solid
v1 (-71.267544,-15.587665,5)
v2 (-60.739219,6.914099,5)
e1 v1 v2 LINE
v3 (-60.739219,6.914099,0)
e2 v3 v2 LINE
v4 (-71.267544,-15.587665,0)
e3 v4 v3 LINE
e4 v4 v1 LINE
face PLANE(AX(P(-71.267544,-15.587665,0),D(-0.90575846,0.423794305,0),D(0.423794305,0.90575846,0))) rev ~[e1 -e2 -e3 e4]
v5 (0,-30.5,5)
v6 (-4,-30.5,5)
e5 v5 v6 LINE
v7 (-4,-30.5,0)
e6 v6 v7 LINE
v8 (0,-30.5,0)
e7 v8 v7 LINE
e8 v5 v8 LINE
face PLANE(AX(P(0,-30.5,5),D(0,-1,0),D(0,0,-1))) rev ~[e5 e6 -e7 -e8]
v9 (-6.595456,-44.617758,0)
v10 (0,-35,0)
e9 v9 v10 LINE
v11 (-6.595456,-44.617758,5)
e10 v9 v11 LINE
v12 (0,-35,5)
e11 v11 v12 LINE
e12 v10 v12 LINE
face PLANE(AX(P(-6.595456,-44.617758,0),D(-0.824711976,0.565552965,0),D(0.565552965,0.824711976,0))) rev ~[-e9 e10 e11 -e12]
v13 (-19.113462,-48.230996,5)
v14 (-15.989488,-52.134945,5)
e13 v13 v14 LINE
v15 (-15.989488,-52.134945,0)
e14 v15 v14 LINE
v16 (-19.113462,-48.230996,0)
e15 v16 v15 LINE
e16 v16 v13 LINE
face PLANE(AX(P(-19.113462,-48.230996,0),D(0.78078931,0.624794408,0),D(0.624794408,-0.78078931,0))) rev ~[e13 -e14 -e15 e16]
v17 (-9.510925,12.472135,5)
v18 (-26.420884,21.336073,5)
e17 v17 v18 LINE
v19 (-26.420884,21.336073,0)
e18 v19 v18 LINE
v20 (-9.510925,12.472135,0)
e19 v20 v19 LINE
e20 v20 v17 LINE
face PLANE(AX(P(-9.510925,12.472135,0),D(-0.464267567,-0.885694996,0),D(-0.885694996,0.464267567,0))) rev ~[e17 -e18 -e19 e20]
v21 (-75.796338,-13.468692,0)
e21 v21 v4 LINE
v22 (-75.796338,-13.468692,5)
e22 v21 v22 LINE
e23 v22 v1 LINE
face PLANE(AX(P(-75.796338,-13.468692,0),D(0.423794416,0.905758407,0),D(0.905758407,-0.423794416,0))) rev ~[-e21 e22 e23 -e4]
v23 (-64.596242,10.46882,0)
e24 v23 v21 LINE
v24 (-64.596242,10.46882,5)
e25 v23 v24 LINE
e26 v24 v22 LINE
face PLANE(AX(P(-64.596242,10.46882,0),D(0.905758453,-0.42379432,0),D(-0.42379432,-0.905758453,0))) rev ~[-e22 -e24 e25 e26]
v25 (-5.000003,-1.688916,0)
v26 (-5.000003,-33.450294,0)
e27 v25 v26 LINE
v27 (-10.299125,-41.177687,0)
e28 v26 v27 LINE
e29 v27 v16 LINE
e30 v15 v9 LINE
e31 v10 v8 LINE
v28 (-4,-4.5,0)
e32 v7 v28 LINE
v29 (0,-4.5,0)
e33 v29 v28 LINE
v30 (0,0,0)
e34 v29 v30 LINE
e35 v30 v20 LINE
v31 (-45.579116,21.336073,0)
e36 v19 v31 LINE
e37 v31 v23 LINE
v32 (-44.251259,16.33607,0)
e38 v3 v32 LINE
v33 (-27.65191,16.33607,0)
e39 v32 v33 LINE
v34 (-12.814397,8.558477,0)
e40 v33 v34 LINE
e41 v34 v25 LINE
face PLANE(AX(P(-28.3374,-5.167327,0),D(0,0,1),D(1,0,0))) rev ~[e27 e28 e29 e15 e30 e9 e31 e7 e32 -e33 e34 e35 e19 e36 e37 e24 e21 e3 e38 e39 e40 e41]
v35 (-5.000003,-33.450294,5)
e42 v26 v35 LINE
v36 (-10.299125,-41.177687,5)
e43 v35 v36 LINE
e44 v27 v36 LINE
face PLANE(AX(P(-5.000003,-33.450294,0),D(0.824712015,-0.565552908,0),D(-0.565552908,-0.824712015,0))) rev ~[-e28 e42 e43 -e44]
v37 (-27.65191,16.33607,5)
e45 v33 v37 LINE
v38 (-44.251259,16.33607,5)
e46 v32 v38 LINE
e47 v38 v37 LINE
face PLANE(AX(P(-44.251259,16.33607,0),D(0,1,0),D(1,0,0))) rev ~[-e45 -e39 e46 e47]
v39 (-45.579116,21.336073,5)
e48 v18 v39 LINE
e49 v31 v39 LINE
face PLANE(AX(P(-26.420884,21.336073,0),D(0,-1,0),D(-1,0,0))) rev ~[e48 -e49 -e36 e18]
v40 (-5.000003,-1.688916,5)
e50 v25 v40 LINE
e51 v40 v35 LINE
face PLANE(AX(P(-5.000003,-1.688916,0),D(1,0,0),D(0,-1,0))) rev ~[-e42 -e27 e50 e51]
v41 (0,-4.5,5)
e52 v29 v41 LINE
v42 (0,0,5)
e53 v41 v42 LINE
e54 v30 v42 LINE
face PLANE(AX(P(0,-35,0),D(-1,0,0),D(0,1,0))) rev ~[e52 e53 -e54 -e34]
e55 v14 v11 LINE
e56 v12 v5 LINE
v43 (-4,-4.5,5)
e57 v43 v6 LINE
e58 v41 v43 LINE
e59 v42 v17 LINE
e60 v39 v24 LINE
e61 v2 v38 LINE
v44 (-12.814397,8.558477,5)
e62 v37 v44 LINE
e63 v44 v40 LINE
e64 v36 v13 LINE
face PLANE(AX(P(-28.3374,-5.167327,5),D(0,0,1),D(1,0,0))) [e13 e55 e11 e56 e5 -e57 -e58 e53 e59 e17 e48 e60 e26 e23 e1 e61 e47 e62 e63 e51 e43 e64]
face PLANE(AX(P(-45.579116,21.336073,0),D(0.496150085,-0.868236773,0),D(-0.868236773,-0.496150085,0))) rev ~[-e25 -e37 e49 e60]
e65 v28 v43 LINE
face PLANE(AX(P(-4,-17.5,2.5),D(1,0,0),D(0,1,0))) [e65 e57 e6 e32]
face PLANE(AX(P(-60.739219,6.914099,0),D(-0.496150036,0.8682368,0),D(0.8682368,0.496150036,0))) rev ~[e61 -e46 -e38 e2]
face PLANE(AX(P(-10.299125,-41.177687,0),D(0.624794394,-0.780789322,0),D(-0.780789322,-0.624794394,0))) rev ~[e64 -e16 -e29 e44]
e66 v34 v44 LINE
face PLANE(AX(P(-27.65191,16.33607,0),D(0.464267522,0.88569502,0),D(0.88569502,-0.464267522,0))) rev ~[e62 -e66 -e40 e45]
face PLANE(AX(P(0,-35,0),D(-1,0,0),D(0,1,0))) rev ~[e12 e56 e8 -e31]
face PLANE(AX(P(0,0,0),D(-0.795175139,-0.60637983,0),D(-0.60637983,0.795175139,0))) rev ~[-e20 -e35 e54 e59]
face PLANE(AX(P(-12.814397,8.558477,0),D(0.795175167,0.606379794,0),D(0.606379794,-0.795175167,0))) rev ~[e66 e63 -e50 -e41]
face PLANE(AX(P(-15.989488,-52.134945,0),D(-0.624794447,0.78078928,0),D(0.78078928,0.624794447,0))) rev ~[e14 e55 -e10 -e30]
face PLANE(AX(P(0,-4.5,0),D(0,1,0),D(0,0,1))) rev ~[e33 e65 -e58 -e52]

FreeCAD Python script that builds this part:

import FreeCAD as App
import Part
import Sketcher

V = App.Vector


def add_polygon(sketch, points):
    """Adds a closed chain of lines whose ends are joined by coincident constraints."""
    first, n = sketch.GeometryCount, len(points)
    for a, b in zip(points, points[1:] + points[:1]):
        sketch.addGeometry(Part.LineSegment(App.Vector(*a, 0), App.Vector(*b, 0)), False)
    for i in range(n):
        sketch.addConstraint(Sketcher.Constraint("Coincident", first + i, 2, first + (i + 1) % n, 1))

doc = App.newDocument("Part")
params = doc.addObject("Spreadsheet::Sheet", "Params")
for row, (alias, value) in enumerate([
    ("sketch1_height", "35 mm"),
    ("pad1_length", "5 mm"),
    ("sketch2_width", "26 mm"),
    ("sketch2_height", "5 mm"),
    ("pocket1_length", "4 mm"),
], start=1):
    params.set(f"A{row}", alias)
    params.set(f"B{row}", "=" + value)
    params.setAlias(f"B{row}", alias)

body = doc.addObject("PartDesign::Body", "Body")

# Sketch on XY plane
sketch1 = body.newObject("Sketcher::SketchObject", "Sketch")
sketch1.AttachmentSupport = (doc.getObject("XY_Plane"), [""])
sketch1.MapMode = "FlatFace"
add_polygon(sketch1, [(0, -35), (0, 0), (-10, 12), (-26, 21), (-46, 21), (-65, 10), (-76, -13), (-71, -16), (-61, 7), (-44, 16), (-28, 16), (-13, 9), (-5, -2), (-5, -33), (-10, -41), (-19, -48), (-16, -52), (-7, -45)])  # lines 0-17
sketch1.addConstraint(Sketcher.Constraint("Vertical", 0))
sketch1.addConstraint(Sketcher.Constraint("Horizontal", 3))
sketch1.addConstraint(Sketcher.Constraint("Horizontal", 9))
sketch1.addConstraint(Sketcher.Constraint("Vertical", 12))
sketch1.addConstraint(Sketcher.Constraint("Coincident", 0, 2, -1, 1))
sketch1.addConstraint(Sketcher.Constraint("Perpendicular", 5, 6))
sketch1.addConstraint(Sketcher.Constraint("Perpendicular", 6, 7))
sketch1.addConstraint(Sketcher.Constraint("Parallel", 4, 8))
sketch1.addConstraint(Sketcher.Constraint("Parallel", 2, 10))
sketch1.addConstraint(Sketcher.Constraint("Parallel", 1, 11))
sketch1.addConstraint(Sketcher.Constraint("Perpendicular", 14, 15))
sketch1.addConstraint(Sketcher.Constraint("Perpendicular", 15, 16))
sketch1.addConstraint(Sketcher.Constraint("Parallel", 13, 17))
sketch1.addConstraint(Sketcher.Constraint("Equal", 6, 15))
sketch1.addConstraint(Sketcher.Constraint("DistanceY", 0, 1, 0, 2, 35.0))
sketch1.addConstraint(Sketcher.Constraint("DistanceX", 3, 2, 3, 1, 19.158232))
sketch1.addConstraint(Sketcher.Constraint("DistanceX", 9, 1, 9, 2, 16.599349))
sketch1.addConstraint(Sketcher.Constraint("DistanceY", 12, 2, 12, 1, 31.761378))
sketch1.addConstraint(Sketcher.Constraint("DistanceY", -1, 1, 7, 2, 6.914099))
sketch1.addConstraint(Sketcher.Constraint("DistanceX", 6, 2, 4, 2, 6.671302))
sketch1.addConstraint(Sketcher.Constraint("DistanceY", 6, 2, 1, 2, 28.0598))
sketch1.addConstraint(Sketcher.Constraint("DistanceX", 13, 2, 1, 2, 0.7882))
sketch1.addConstraint(Sketcher.Constraint("DistanceY", 14, 2, 12, 2, 14.780702))
sketch1.addConstraint(Sketcher.Constraint("Distance", 5, 26.428141))
sketch1.addConstraint(Sketcher.Constraint("Distance", 14, 11.289008))
sketch1.addConstraint(Sketcher.Constraint("Distance", 17, 11.66196))
sketch1.addConstraint(Sketcher.Constraint("DistanceY", -1, 1, 4, 2, 10.46882))
sketch1.addConstraint(Sketcher.Constraint("DistanceX", 5, 2, -1, 1, 75.796338))
sketch1.addConstraint(Sketcher.Constraint("DistanceX", 7, 2, -1, 1, 60.739219))
sketch1.addConstraint(Sketcher.Constraint("DistanceX", 8, 2, -1, 1, 44.251259))
sketch1.addConstraint(Sketcher.Constraint("DistanceY", -1, 1, 8, 2, 16.33607))
sketch1.addConstraint(Sketcher.Constraint("DistanceX", 14, 2, -1, 1, 19.113462))
sketch1.addConstraint(Sketcher.Constraint("DistanceY", 16, 2, -1, 1, 44.617758))
sketch1.addConstraint(Sketcher.Constraint("DistanceX", 2, 2, 1, 2, 16.909959))
sketch1.addConstraint(Sketcher.Constraint("DistanceX", 4, 2, 2, 2, 38.175358))
sketch1.setExpression("Constraints[32]", "Params.sketch1_height")
pad1 = body.newObject("PartDesign::Pad", "Pad")
pad1.Profile = sketch1
pad1.setExpression("Length", "Params.pad1_length")

# Sketch on YZ plane
sketch2 = body.newObject("Sketcher::SketchObject", "Sketch001")
sketch2.AttachmentSupport = (doc.getObject("YZ_Plane"), [""])
sketch2.MapMode = "FlatFace"
add_polygon(sketch2, [(-4, 0), (-4, 5), (-30, 5), (-30, 0)])  # lines 0-3
sketch2.addConstraint(Sketcher.Constraint("Vertical", 0))
sketch2.addConstraint(Sketcher.Constraint("Horizontal", 1))
sketch2.addConstraint(Sketcher.Constraint("Vertical", 2))
sketch2.addConstraint(Sketcher.Constraint("Horizontal", 3))
sketch2.addConstraint(Sketcher.Constraint("PointOnObject", 2, 2, -1))
sketch2.addConstraint(Sketcher.Constraint("DistanceX", 1, 2, 1, 1, 26.0))
sketch2.addConstraint(Sketcher.Constraint("DistanceY", 0, 1, 0, 2, 5.0))
sketch2.addConstraint(Sketcher.Constraint("DistanceX", 0, 2, -1, 1, 4.5))
sketch2.setExpression("Constraints[9]", "Params.sketch2_width")
sketch2.setExpression("Constraints[10]", "Params.sketch2_height")
pocket1 = body.newObject("PartDesign::Pocket", "Pocket")
pocket1.Profile = sketch2
pocket1.setExpression("Length", "Params.pocket1_length")

doc.recompute()
